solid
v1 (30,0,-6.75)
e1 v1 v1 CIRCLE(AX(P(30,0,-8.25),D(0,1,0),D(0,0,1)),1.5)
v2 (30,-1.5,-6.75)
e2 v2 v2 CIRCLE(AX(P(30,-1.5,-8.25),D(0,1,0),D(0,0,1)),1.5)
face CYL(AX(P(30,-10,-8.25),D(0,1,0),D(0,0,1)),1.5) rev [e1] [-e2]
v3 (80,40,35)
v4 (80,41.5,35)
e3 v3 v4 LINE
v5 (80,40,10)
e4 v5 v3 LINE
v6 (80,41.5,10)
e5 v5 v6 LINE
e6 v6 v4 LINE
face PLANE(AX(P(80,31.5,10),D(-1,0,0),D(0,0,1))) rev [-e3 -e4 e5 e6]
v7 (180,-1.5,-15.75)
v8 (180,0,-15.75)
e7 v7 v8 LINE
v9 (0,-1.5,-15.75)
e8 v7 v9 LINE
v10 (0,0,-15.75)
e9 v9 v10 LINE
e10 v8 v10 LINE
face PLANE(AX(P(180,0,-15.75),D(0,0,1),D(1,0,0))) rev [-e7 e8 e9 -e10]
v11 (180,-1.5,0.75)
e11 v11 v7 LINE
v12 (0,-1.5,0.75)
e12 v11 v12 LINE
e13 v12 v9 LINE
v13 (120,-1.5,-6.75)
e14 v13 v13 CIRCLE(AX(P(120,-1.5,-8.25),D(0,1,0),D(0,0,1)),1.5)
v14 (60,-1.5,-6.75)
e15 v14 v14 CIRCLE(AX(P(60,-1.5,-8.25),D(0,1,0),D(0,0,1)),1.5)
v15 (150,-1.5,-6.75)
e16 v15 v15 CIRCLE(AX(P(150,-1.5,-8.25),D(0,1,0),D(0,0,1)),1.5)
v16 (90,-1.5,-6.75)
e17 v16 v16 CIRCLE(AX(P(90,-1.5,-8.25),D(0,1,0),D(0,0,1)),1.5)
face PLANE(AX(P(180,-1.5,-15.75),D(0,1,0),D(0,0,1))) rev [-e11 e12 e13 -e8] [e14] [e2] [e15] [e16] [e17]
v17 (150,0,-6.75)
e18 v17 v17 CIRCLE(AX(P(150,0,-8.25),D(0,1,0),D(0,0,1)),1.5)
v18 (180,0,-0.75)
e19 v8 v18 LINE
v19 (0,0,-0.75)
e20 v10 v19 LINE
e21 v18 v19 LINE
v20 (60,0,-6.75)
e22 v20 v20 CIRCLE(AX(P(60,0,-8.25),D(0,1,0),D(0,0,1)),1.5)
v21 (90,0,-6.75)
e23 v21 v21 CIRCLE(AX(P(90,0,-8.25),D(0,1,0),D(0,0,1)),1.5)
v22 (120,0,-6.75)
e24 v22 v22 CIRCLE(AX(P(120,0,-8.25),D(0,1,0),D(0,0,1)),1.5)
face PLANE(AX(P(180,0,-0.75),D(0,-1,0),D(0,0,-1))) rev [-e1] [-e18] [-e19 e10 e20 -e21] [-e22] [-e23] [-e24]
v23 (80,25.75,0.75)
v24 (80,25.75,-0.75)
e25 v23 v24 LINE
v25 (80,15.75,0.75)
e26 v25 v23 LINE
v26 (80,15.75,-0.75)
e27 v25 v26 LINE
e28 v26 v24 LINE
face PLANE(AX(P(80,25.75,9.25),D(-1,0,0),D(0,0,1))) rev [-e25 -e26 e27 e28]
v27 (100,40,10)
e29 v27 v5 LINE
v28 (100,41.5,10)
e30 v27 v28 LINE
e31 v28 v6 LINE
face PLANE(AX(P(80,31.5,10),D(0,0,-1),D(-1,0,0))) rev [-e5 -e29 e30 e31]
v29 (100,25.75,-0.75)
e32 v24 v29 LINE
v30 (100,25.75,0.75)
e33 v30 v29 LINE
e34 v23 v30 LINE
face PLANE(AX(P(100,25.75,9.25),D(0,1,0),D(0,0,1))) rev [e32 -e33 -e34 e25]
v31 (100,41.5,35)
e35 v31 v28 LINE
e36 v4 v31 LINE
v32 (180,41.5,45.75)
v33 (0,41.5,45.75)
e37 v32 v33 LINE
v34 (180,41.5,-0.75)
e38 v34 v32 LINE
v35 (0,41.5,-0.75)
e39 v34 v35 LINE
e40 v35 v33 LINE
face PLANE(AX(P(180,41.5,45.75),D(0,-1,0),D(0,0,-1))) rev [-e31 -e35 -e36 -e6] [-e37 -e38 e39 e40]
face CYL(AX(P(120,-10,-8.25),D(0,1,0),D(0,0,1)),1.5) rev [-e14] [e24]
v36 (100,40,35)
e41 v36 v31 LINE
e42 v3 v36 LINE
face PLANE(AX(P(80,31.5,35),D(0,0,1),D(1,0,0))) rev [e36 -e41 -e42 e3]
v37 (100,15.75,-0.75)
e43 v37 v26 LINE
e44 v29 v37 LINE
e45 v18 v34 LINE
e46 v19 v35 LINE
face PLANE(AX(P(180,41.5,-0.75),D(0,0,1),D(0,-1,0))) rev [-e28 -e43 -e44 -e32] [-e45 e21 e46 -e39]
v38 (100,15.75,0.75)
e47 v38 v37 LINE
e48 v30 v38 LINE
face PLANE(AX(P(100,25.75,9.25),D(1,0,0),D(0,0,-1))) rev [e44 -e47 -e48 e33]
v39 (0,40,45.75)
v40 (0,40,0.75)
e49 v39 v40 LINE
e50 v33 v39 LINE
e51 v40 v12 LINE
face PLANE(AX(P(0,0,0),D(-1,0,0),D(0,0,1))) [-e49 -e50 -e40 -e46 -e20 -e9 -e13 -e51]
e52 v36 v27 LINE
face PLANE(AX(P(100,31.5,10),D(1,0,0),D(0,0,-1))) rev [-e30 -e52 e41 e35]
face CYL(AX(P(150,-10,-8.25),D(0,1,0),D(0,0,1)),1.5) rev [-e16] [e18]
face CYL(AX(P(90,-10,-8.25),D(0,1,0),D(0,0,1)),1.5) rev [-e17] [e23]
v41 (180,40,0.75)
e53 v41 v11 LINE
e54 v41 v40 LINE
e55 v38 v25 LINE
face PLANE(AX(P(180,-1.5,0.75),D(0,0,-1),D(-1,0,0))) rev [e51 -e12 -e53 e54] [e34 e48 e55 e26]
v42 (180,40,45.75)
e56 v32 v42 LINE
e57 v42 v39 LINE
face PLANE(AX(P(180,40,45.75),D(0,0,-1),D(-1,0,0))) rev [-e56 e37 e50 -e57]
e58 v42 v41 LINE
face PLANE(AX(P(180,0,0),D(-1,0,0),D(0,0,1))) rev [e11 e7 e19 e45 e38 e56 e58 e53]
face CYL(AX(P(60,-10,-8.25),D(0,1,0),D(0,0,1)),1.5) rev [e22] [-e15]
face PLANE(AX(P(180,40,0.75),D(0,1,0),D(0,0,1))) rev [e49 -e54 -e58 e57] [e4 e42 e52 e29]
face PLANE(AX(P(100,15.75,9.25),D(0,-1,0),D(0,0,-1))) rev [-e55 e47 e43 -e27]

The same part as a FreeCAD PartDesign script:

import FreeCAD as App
import Part
import Sketcher
from FreeCAD import Vector


def add_polygon(sketch, points):
    """Adds a closed chain of lines whose ends are joined by coincident constraints."""
    first, n = sketch.GeometryCount, len(points)
    for a, b in zip(points, points[1:] + points[:1]):
        sketch.addGeometry(Part.LineSegment(App.Vector(*a, 0), App.Vector(*b, 0)), False)
    for i in range(n):
        sketch.addConstraint(Sketcher.Constraint("Coincident", first + i, 2, first + (i + 1) % n, 1))

doc = App.newDocument("Part")
params = doc.addObject("Spreadsheet::Sheet", "Params")
for row, (alias, value) in enumerate([
    ("sketch1_height", "15 mm"),
    ("sketch1_height2", "45 mm"),
    ("sketch1_width", "41.5 mm"),
    ("sketch1_width2", "1.5 mm"),
    ("sketch1_height3", "16.5 mm"),
    ("pad1_length", "180 mm"),
    ("sketch2_diameter", "3 mm"),
    ("pocket1_length", "10 mm"),
    ("sketch3_width", "20 mm"),
    ("sketch3_height", "10 mm"),
    ("pocket2_length", "10 mm"),
    ("sketch4_width", "20 mm"),
    ("sketch4_height", "25 mm"),
    ("pocket3_length", "10 mm"),
], start=1):
    params.set(f"A{row}", alias)
    params.set(f"B{row}", "=" + value)
    params.setAlias(f"B{row}", alias)

body = doc.addObject("PartDesign::Body", "Body")

sketch1 = doc.addObject("Sketcher::SketchObject", "Sketch")
body.addObject(sketch1)
sketch1.AttachmentSupport = (doc.YZ_Plane, [""])
sketch1.MapMode = "FlatFace"
add_polygon(sketch1, [(40, 0.8), (-1.5, 0.8), (-1.5, -15.8), (0, -15.8), (0, -0.8), (41.5, -0.8), (41.5, 45.8), (40, 45.8)])
sketch1.addConstraint([
    Sketcher.Constraint("Horizontal", 0),
    Sketcher.Constraint("Vertical", 1),
    Sketcher.Constraint("Horizontal", 2),
    Sketcher.Constraint("Vertical", 3),
    Sketcher.Constraint("Horizontal", 4),
    Sketcher.Constraint("Vertical", 5),
    Sketcher.Constraint("Horizontal", 6),
    Sketcher.Constraint("Vertical", 7),
    Sketcher.Constraint("PointOnObject", 2, 2, -2),
    Sketcher.Constraint("Equal", 0, 4),
    Sketcher.Constraint("DistanceY", 3, 1, 3, 2, 15.0),
    Sketcher.Constraint("DistanceY", 7, 2, 7, 1, 45.0),
    Sketcher.Constraint("DistanceX", 0, 2, 0, 1, 41.5),
    Sketcher.Constraint("DistanceX", 2, 1, 2, 2, 1.5),
    Sketcher.Constraint("DistanceY", 1, 2, 1, 1, 16.5),
    Sketcher.Constraint("DistanceY", -1, 1, 0, 2, 0.75),
])
sketch1.setExpression("Constraints[18]", "Params.sketch1_height")
sketch1.setExpression("Constraints[19]", "Params.sketch1_height2")
sketch1.setExpression("Constraints[20]", "Params.sketch1_width")
sketch1.setExpression("Constraints[21]", "Params.sketch1_width2")
sketch1.setExpression("Constraints[22]", "Params.sketch1_height3")
pad1 = doc.addObject("PartDesign::Pad", "Pad")
body.addObject(pad1)
pad1.Profile = sketch1
pad1.setExpression("Length", "Params.pad1_length")

sketch2 = doc.addObject("Sketcher::SketchObject", "Sketch001")
body.addObject(sketch2)
sketch2.AttachmentSupport = (doc.XZ_Plane, [""])
sketch2.MapMode = "FlatFace"
sketch2.addGeometry([
    Part.Circle(Vector(120, -8.2, 0), Vector(0, 0, 1), 1.5),
    Part.Circle(Vector(90, -8.2, 0), Vector(0, 0, 1), 1.5),
    Part.Circle(Vector(150, -8.2, 0), Vector(0, 0, 1), 1.5),
    Part.Circle(Vector(60, -8.2, 0), Vector(0, 0, 1), 1.5),
    Part.Circle(Vector(30, -8.2, 0), Vector(0, 0, 1), 1.5),
], False)
sketch2.addConstraint([
    Sketcher.Constraint("Equal", 0, 1),
    Sketcher.Constraint("Equal", 1, 2),
    Sketcher.Constraint("Equal", 2, 3),
    Sketcher.Constraint("Equal", 3, 4),
    Sketcher.Constraint("Horizontal", 0, 3, 1, 3),
    Sketcher.Constraint("Horizontal", 1, 3, 2, 3),
    Sketcher.Constraint("Horizontal", 2, 3, 3, 3),
    Sketcher.Constraint("Horizontal", 3, 3, 4, 3),
    Sketcher.Constraint("Diameter", 0, 3.0),
    Sketcher.Constraint("DistanceX", -1, 1, 0, 3, 120.0),
    Sketcher.Constraint("DistanceX", -1, 1, 1, 3, 90.0),
    Sketcher.Constraint("DistanceX", -1, 1, 2, 3, 150.0),
    Sketcher.Constraint("DistanceX", -1, 1, 3, 3, 60.0),
    Sketcher.Constraint("DistanceX", -1, 1, 4, 3, 30.0),
    Sketcher.Constraint("DistanceY", 0, 3, -1, 1, 8.25),
])
sketch2.setExpression("Constraints[8]", "Params.sketch2_diameter")
pocket1 = doc.addObject("PartDesign::Pocket", "Pocket")
body.addObject(pocket1)
pocket1.Profile = sketch2
pocket1.setExpression("Length", "Params.pocket1_length")
pocket1.Reversed = True

sketch3 = doc.addObject("Sketcher::SketchObject", "Sketch002")
body.addObject(sketch3)
sketch3.AttachmentSupport = (doc.XY_Plane, [""])
sketch3.MapMode = "FlatFace"
sketch3.AttachmentOffset = App.Placement(Vector(0, 0, -0.75), App.Rotation())
add_polygon(sketch3, [(100, 26), (100, 16), (80, 16), (80, 26)])
sketch3.addConstraint([
    Sketcher.Constraint("Vertical", 0),
    Sketcher.Constraint("Horizontal", 1),
    Sketcher.Constraint("Vertical", 2),
    Sketcher.Constraint("Horizontal", 3),
    Sketcher.Constraint("DistanceX", 1, 2, 1, 1, 20.0),
    Sketcher.Constraint("DistanceY", 0, 2, 0, 1, 10.0),
    Sketcher.Constraint("DistanceX", -1, 1, 0, 2, 100.0),
    Sketcher.Constraint("DistanceY", -1, 1, 0, 2, 15.75),
])
sketch3.setExpression("Constraints[8]", "Params.sketch3_width")
sketch3.setExpression("Constraints[9]", "Params.sketch3_height")
pocket2 = doc.addObject("PartDesign::Pocket", "Pocket001")
body.addObject(pocket2)
pocket2.Profile = sketch3
pocket2.setExpression("Length", "Params.pocket2_length")
pocket2.Reversed = True

sketch4 = doc.addObject("Sketcher::SketchObject", "Sketch003")
body.addObject(sketch4)
sketch4.AttachmentSupport = (doc.XZ_Plane, [""])
sketch4.MapMode = "FlatFace"
sketch4.AttachmentOffset = App.Placement(Vector(0, 0, -41.5), App.Rotation())
add_polygon(sketch4, [(80, 10), (80, 35), (100, 35), (100, 10)])
sketch4.addConstraint([
    Sketcher.Constraint("Vertical", 0),
    Sketcher.Constraint("Horizontal", 1),
    Sketcher.Constraint("Vertical", 2),
    Sketcher.Constraint("Horizontal", 3),
    Sketcher.Constraint("DistanceX", 1, 1, 1, 2, 20.0),
    Sketcher.Constraint("DistanceY", 0, 1, 0, 2, 25.0),
    Sketcher.Constraint("DistanceX", -1, 1, 0, 2, 80.0),
    Sketcher.Constraint("DistanceY", -1, 1, 0, 2, 35.0),
])
sketch4.setExpression("Constraints[8]", "Params.sketch4_width")
sketch4.setExpression("Constraints[9]", "Params.sketch4_height")
pocket3 = doc.addObject("PartDesign::Pocket", "Pocket002")
body.addObject(pocket3)
pocket3.Profile = sketch4
pocket3.setExpression("Length", "Params.pocket3_length")
pocket3.Reversed = True

doc.recompute()
